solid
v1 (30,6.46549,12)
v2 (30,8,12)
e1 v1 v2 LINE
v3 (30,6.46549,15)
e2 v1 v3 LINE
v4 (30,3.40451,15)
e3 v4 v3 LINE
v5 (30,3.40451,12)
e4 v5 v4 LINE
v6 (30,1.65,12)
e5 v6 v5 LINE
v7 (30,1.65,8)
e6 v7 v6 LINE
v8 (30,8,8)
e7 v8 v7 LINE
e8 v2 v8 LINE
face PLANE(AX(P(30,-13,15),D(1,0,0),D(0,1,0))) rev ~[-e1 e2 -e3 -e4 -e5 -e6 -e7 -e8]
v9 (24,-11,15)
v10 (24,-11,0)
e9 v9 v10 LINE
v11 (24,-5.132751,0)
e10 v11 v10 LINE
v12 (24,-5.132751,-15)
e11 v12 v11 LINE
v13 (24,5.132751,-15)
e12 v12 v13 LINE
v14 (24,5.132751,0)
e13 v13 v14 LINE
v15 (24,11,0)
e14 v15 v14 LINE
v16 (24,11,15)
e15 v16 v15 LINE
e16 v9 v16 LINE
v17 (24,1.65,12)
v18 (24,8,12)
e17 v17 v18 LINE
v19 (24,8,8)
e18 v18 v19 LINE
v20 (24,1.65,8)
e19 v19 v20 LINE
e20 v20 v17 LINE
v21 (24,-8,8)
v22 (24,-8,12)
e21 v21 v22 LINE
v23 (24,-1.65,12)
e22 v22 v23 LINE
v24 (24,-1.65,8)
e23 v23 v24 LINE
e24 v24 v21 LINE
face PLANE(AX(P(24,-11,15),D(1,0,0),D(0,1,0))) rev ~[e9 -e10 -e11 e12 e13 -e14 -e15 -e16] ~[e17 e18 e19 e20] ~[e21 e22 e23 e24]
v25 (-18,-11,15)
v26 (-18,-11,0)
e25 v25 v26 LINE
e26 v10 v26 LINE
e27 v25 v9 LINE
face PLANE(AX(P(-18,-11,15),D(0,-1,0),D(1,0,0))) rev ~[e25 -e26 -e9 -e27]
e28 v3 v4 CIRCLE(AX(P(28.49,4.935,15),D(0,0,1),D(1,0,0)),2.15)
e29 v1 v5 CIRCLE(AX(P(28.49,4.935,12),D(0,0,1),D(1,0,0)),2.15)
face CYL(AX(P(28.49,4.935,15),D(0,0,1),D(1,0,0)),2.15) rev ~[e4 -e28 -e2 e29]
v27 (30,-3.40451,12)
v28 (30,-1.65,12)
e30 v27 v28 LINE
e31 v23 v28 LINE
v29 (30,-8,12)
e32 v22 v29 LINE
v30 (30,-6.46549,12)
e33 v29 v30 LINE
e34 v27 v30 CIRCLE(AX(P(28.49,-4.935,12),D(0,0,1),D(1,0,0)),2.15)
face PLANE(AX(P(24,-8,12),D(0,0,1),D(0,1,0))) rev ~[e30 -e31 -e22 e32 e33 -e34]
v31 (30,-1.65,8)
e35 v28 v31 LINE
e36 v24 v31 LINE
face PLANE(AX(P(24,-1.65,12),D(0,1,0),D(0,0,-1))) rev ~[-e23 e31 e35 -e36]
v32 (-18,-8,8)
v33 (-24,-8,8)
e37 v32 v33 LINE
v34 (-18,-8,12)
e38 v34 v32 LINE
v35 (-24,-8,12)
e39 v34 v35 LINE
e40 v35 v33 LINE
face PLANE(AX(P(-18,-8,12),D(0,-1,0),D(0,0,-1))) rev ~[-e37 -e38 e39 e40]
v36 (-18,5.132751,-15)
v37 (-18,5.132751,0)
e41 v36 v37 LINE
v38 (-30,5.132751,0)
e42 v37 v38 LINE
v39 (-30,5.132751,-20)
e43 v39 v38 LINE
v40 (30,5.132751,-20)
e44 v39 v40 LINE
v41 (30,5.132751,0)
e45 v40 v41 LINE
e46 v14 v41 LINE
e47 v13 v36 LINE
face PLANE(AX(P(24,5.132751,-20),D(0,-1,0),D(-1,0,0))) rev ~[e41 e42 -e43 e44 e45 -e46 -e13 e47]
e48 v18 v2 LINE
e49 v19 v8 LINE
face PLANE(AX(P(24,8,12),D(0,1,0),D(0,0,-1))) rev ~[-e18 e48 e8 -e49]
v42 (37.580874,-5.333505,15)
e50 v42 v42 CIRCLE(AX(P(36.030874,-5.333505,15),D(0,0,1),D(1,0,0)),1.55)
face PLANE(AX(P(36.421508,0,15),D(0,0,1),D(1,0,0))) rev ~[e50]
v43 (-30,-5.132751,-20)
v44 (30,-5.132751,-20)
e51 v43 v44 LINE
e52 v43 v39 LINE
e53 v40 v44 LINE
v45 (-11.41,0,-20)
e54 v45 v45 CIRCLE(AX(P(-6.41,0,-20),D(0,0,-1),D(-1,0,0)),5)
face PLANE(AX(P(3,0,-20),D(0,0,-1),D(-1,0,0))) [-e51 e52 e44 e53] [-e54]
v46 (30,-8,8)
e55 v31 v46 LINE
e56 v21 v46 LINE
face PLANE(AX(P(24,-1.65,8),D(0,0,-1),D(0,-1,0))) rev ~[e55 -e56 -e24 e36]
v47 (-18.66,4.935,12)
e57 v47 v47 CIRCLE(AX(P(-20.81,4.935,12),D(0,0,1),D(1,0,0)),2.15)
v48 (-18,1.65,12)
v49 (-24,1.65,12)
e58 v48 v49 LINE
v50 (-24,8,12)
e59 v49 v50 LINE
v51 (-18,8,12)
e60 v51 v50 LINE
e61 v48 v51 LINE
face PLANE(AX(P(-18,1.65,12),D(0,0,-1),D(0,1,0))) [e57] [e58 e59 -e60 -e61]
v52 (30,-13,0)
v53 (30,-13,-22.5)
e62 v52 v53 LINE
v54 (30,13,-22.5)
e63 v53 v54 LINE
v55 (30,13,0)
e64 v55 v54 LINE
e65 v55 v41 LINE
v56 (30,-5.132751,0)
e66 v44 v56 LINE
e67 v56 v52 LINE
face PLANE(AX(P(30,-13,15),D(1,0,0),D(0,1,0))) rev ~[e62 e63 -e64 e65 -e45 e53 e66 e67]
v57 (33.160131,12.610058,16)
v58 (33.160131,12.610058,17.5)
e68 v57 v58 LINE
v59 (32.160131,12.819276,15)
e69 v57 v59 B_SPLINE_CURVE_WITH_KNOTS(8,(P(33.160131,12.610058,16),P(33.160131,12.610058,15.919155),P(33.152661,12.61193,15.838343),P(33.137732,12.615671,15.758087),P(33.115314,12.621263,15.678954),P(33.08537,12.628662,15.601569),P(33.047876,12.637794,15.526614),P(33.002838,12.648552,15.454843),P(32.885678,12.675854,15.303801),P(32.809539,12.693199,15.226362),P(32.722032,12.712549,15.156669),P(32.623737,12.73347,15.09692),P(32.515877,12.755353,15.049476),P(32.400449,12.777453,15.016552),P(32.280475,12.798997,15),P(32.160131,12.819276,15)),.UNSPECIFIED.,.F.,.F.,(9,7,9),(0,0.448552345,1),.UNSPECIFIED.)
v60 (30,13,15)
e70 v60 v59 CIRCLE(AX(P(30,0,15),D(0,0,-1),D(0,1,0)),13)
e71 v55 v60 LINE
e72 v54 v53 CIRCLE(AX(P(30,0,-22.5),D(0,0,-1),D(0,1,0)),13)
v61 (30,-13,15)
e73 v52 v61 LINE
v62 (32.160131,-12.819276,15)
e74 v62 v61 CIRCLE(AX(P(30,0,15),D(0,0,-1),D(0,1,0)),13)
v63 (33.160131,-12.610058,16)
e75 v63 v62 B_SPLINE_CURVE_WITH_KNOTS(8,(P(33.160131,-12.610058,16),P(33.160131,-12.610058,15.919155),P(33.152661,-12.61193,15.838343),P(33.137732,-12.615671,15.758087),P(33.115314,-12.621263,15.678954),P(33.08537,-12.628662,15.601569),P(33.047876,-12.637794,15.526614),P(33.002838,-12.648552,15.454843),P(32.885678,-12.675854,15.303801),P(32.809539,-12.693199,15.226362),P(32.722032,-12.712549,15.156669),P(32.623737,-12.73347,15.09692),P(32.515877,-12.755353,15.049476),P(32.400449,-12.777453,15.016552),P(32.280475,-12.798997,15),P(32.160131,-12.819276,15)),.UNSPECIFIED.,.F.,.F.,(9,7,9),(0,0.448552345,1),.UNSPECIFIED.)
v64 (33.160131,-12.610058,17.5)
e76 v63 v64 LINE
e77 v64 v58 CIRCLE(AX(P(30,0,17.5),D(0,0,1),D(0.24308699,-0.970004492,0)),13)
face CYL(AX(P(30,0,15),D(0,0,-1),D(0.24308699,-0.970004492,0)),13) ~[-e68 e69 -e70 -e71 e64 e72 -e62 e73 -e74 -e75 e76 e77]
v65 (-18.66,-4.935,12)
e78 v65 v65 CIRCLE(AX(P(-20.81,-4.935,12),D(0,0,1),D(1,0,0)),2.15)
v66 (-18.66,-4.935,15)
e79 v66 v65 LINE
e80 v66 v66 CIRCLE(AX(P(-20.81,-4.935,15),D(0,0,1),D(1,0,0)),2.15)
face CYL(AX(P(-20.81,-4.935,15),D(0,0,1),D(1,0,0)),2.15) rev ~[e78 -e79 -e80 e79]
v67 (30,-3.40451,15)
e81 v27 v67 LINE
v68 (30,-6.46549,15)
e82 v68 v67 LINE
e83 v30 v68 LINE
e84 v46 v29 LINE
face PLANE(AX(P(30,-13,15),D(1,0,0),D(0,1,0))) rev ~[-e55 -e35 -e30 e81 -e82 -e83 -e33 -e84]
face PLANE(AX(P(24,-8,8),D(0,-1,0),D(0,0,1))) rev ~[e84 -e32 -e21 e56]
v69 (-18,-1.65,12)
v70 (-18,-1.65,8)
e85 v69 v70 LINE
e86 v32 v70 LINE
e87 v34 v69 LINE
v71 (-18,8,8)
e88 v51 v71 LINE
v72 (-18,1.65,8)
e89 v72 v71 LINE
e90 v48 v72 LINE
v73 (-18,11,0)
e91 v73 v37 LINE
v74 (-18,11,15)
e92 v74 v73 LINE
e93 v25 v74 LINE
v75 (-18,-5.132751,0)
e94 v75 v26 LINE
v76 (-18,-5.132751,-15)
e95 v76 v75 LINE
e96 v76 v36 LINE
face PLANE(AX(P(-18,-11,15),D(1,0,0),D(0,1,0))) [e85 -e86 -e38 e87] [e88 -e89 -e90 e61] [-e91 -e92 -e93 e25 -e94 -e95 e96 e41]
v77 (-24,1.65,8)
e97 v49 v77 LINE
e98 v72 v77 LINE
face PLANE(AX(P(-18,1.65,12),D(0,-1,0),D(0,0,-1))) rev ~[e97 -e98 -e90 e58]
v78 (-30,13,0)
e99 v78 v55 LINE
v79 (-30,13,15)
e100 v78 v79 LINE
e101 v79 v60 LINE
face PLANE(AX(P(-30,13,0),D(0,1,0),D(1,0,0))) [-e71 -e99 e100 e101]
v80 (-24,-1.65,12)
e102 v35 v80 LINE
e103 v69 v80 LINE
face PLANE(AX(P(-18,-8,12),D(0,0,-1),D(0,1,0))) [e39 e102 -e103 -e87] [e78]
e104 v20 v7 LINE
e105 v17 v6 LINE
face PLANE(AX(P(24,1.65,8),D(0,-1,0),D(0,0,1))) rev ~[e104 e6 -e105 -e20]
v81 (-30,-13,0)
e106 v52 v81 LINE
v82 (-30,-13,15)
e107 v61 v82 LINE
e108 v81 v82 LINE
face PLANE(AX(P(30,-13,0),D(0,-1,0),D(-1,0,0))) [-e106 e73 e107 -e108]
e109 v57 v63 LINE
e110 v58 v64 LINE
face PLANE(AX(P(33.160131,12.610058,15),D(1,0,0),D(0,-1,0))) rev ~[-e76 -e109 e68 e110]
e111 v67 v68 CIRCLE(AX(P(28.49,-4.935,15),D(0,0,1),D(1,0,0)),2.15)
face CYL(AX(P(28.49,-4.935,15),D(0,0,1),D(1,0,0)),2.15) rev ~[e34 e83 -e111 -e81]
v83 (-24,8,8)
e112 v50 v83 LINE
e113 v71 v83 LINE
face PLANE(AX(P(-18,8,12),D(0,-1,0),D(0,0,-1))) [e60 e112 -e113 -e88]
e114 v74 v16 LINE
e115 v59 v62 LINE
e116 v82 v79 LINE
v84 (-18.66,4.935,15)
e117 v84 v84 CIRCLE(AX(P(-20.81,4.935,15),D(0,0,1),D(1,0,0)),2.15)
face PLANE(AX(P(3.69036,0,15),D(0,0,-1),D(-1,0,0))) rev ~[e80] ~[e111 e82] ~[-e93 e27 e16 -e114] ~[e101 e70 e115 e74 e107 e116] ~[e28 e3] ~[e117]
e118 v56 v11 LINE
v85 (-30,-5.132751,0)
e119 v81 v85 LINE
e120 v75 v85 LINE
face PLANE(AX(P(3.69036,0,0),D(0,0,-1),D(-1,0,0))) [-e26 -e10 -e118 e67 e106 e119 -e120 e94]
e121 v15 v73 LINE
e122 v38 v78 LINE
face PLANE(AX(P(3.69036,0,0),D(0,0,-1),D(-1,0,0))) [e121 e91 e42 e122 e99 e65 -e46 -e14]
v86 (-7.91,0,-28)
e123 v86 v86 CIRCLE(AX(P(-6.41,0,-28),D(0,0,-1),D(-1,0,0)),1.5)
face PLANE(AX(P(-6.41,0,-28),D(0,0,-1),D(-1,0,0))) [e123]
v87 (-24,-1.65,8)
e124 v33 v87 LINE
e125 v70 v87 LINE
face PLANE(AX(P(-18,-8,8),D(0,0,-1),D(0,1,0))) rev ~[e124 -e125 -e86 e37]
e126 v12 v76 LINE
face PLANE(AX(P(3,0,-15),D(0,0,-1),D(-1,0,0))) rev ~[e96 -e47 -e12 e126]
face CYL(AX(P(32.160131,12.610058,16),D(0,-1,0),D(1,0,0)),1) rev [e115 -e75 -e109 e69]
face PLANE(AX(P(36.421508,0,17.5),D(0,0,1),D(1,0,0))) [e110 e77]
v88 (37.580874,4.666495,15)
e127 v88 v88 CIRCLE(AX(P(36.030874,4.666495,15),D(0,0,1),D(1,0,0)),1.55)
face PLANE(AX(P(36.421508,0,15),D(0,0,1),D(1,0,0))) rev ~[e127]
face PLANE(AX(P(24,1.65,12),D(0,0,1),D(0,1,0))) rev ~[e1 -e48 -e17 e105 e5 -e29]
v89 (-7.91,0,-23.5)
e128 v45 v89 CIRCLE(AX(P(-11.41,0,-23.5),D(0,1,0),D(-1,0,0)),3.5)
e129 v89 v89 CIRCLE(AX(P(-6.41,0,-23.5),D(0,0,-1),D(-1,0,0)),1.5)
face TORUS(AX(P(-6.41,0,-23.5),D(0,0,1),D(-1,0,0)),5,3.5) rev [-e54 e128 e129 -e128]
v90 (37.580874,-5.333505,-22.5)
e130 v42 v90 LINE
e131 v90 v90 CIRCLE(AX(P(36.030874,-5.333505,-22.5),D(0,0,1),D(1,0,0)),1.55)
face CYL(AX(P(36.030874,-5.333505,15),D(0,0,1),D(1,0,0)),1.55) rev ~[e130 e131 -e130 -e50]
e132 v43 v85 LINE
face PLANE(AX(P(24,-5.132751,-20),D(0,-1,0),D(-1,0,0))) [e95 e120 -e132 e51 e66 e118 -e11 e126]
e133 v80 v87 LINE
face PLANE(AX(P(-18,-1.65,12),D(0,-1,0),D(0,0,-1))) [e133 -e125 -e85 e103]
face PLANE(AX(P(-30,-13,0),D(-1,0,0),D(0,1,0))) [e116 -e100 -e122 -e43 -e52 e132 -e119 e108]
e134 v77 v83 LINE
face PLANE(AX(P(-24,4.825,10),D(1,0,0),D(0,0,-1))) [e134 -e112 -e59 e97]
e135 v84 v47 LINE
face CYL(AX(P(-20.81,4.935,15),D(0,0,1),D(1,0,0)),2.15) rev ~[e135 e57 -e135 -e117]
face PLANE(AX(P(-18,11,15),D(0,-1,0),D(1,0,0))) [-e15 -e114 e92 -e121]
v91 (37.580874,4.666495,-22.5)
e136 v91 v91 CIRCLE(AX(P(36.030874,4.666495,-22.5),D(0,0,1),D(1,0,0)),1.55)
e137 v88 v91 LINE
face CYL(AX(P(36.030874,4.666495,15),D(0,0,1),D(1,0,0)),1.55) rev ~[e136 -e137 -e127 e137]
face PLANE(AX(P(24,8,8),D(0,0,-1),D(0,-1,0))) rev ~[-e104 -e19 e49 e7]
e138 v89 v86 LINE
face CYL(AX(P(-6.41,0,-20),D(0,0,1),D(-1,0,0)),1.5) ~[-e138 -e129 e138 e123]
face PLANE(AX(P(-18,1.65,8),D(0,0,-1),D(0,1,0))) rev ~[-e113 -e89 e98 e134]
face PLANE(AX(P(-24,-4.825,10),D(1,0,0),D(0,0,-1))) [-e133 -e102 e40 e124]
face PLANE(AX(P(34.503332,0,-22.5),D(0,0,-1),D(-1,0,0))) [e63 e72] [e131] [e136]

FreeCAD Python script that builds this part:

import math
import FreeCAD as App
import Part
import Sketcher
from FreeCAD import Vector
Q = App.Units.Quantity


def edges_at(feature, points):
    """Names of the edges that pass closest to the given points."""
    edges = feature.Shape.Edges
    near = lambda p: min(range(len(edges)), key=lambda i: edges[i].distToShape(Part.Vertex(*p))[0])
    return sorted({f"Edge{near(p) + 1}" for p in points})


def add_polygon(sketch, points):
    """Adds a closed chain of lines whose ends are joined by coincident constraints."""
    first, n = sketch.GeometryCount, len(points)
    for a, b in zip(points, points[1:] + points[:1]):
        sketch.addGeometry(Part.LineSegment(App.Vector(*a, 0), App.Vector(*b, 0)), False)
    for i in range(n):
        sketch.addConstraint(Sketcher.Constraint("Coincident", first + i, 2, first + (i + 1) % n, 1))

doc = App.newDocument("Part")
body = doc.addObject("PartDesign::Body", "Body")

sketch1 = body.newObject("Sketcher::SketchObject", "Sketch")
sketch1.AttachmentSupport = (doc.getObject("XY_Plane"), [""])
sketch1.MapMode = "FlatFace"
sketch1.addGeometry([
    Part.LineSegment(Vector(-30, -13, 0), Vector(30, -13, 0)),
    Part.ArcOfCircle(Part.Circle(Vector(30, 0, 0), Vector(0, 0, 1), 13), math.radians(-90), math.radians(90)),
    Part.LineSegment(Vector(30, 13, 0), Vector(-30, 13, 0)),
    Part.LineSegment(Vector(-30, 13, 0), Vector(-30, -13, 0)),
], False)
sketch1.addConstraint([
    Sketcher.Constraint("Tangent", 0, 2, 1, 1),
    Sketcher.Constraint("Tangent", 1, 2, 2, 1),
    Sketcher.Constraint("Coincident", 2, 2, 3, 1),
    Sketcher.Constraint("Coincident", 3, 2, 0, 1),
    Sketcher.Constraint("Horizontal", 0),
    Sketcher.Constraint("Horizontal", 2),
    Sketcher.Constraint("Vertical", 3),
    Sketcher.Constraint("Symmetric", 0, 2, 2, 2, -1, 1),
    Sketcher.Constraint("Radius", 1, Q("13 mm")),
    Sketcher.Constraint("DistanceX", 0, 1, 0, 2, Q("60 mm")),
])
pad1 = body.newObject("PartDesign::Pad", "Pad")
pad1.Profile = sketch1
pad1.Length = 15

sketch2 = body.newObject("Sketcher::SketchObject", "Sketch001")
sketch2.AttachmentSupport = (doc.getObject("XY_Plane"), [""])
sketch2.MapMode = "FlatFace"
sketch2.AttachmentOffset = App.Placement(Vector(0, 0, 15), App.Rotation())
add_polygon(sketch2, [(-18, 11), (-18, -11), (24, -11), (24, 11)])
sketch2.addConstraint([
    Sketcher.Constraint("Vertical", 0),
    Sketcher.Constraint("Horizontal", 1),
    Sketcher.Constraint("Vertical", 2),
    Sketcher.Constraint("Horizontal", 3),
    Sketcher.Constraint("DistanceX", 1, 1, 1, 2, Q("42 mm")),
    Sketcher.Constraint("DistanceY", 0, 2, 0, 1, Q("22 mm")),
    Sketcher.Constraint("DistanceX", 0, 2, -1, 1, Q("18 mm")),
    Sketcher.Constraint("DistanceY", 0, 2, -1, 1, Q("11 mm")),
])
pocket1 = body.newObject("PartDesign::Pocket", "Pocket")
pocket1.Profile = sketch2
pocket1.Type = "ThroughAll"

sketch3 = body.newObject("Sketcher::SketchObject", "Sketch002")
sketch3.AttachmentSupport = (doc.getObject("XY_Plane"), [""])
sketch3.MapMode = "FlatFace"
sketch3.AttachmentOffset = App.Placement(Vector(0, 0, 15), App.Rotation())
sketch3.addGeometry([
    Part.Circle(Vector(-20.8, 4.9, 0), Vector(0, 0, 1), 2.1),
    Part.Circle(Vector(-20.8, -4.9, 0), Vector(0, 0, 1), 2.1),
    Part.Circle(Vector(28.5, 4.9, 0), Vector(0, 0, 1), 2.1),
    Part.Circle(Vector(28.5, -4.9, 0), Vector(0, 0, 1), 2.1),
], False)
sketch3.addConstraint([
    Sketcher.Constraint("Equal", 0, 1),
    Sketcher.Constraint("Equal", 1, 2),
    Sketcher.Constraint("Equal", 2, 3),
    Sketcher.Constraint("Symmetric", 0, 3, 1, 3, -1),
    Sketcher.Constraint("Symmetric", 2, 3, 3, 3, -1),
    Sketcher.Constraint("Horizontal", 0, 3, 2, 3),
    Sketcher.Constraint("Diameter", 0, Q("4.3 mm")),
    Sketcher.Constraint("DistanceX", 0, 3, 2, 3, Q("49.3 mm")),
    Sketcher.Constraint("DistanceX", 0, 3, -1, 1, Q("20.81 mm")),
    Sketcher.Constraint("DistanceY", 1, 3, 0, 3, Q("9.87 mm")),
])
pocket2 = body.newObject("PartDesign::Pocket", "Pocket001")
pocket2.Profile = sketch3
pocket2.Length = 3

sketch4 = body.newObject("Sketcher::SketchObject", "Sketch003")
sketch4.AttachmentSupport = (doc.getObject("YZ_Plane"), [""])
sketch4.MapMode = "FlatFace"
sketch4.AttachmentOffset = App.Placement(Vector(0, 0, -18), App.Rotation())
add_polygon(sketch4, [(-1.6, 12), (-8, 12), (-8, 8), (-1.6, 8)])
add_polygon(sketch4, [(8, 12), (1.6, 12), (1.6, 8), (8, 8)])
sketch4.addConstraint([
    Sketcher.Constraint("Horizontal", 0),
    Sketcher.Constraint("Vertical", 1),
    Sketcher.Constraint("Horizontal", 2),
    Sketcher.Constraint("Vertical", 3),
    Sketcher.Constraint("Horizontal", 4),
    Sketcher.Constraint("Vertical", 5),
    Sketcher.Constraint("Horizontal", 6),
    Sketcher.Constraint("Vertical", 7),
    Sketcher.Constraint("Symmetric", 3, 2, 4, 2, -2),
    Sketcher.Constraint("Symmetric", 1, 2, 6, 2, -2),
    Sketcher.Constraint("DistanceY", 1, 2, 1, 1, Q("4 mm")),
    Sketcher.Constraint("DistanceX", 0, 2, -1, 1, Q("8 mm")),
    Sketcher.Constraint("DistanceY", -1, 1, 0, 2, Q("12 mm")),
    Sketcher.Constraint("DistanceX", 0, 2, 0, 1, Q("6.35 mm")),
])
pocket3 = body.newObject("PartDesign::Pocket", "Pocket002")
pocket3.Profile = sketch4
pocket3.Length = 6

sketch5 = body.newObject("Sketcher::SketchObject", "Sketch004")
sketch5.AttachmentSupport = (doc.getObject("YZ_Plane"), [""])
sketch5.MapMode = "FlatFace"
sketch5.AttachmentOffset = App.Placement(Vector(0, 0, 24), App.Rotation())
add_polygon(sketch5, [(8, 12), (8, 8), (1.6, 8), (1.6, 12)])
add_polygon(sketch5, [(-1.6, 12), (-1.6, 8), (-8, 8), (-8, 12)])
sketch5.addConstraint([
    Sketcher.Constraint("Vertical", 0),
    Sketcher.Constraint("Horizontal", 1),
    Sketcher.Constraint("Vertical", 2),
    Sketcher.Constraint("Horizontal", 3),
    Sketcher.Constraint("Vertical", 4),
    Sketcher.Constraint("Horizontal", 5),
    Sketcher.Constraint("Vertical", 6),
    Sketcher.Constraint("Horizontal", 7),
    Sketcher.Constraint("Symmetric", 1, 2, 4, 2, -2),
    Sketcher.Constraint("Symmetric", 3, 2, 6, 2, -2),
    Sketcher.Constraint("DistanceY", 0, 2, 0, 1, Q("4 mm")),
    Sketcher.Constraint("DistanceX", -1, 1, 0, 2, Q("8 mm")),
    Sketcher.Constraint("DistanceY", -1, 1, 0, 2, Q("8 mm")),
    Sketcher.Constraint("DistanceX", 1, 2, 1, 1, Q("6.35 mm")),
])
pocket4 = body.newObject("PartDesign::Pocket", "Pocket003")
pocket4.Profile = sketch5
pocket4.Length = 8
pocket4.Reversed = True

sketch6 = body.newObject("Sketcher::SketchObject", "Sketch005")
sketch6.AttachmentSupport = (doc.getObject("XY_Plane"), [""])
sketch6.MapMode = "FlatFace"
sketch6.AttachmentOffset = App.Placement(Vector(0, 0, -20), App.Rotation())
add_polygon(sketch6, [(-18, 5), (-18, -5), (-30, -5), (-30, 5)])
sketch6.addGeometry(Part.LineSegment(Vector(24, 5, 0), Vector(42, 5, 0)), False)
sketch6.addGeometry(Part.ArcOfCircle(Part.Circle(Vector(30, 0, 0), Vector(0, 0, 1), 13), math.radians(-23), math.radians(23)), False)
sketch6.addGeometry(Part.LineSegment(Vector(42, -5, 0), Vector(24, -5, 0)), False)
sketch6.addGeometry(Part.LineSegment(Vector(24, -5, 0), Vector(24, 5, 0)), False)
sketch6.addConstraint([
    Sketcher.Constraint("Coincident", 4, 2, 5, 2),
    Sketcher.Constraint("Coincident", 5, 1, 6, 1),
    Sketcher.Constraint("Coincident", 6, 2, 7, 1),
    Sketcher.Constraint("Coincident", 7, 2, 4, 1),
    Sketcher.Constraint("Vertical", 0),
    Sketcher.Constraint("Horizontal", 1),
    Sketcher.Constraint("Vertical", 2),
    Sketcher.Constraint("Horizontal", 3),
    Sketcher.Constraint("Horizontal", 4),
    Sketcher.Constraint("Horizontal", 6),
    Sketcher.Constraint("Vertical", 7),
    Sketcher.Constraint("Symmetric", 4, 2, 5, 1, -1),
    Sketcher.Constraint("Horizontal", 3, 2, 4, 2),
    Sketcher.Constraint("Horizontal", 1, 2, 5, 1),
    Sketcher.Constraint("Radius", 5, Q("13 mm")),
    Sketcher.Constraint("DistanceX", 1, 2, 1, 1, Q("12 mm")),
    Sketcher.Constraint("DistanceX", -1, 1, 5, 3, Q("30 mm")),
    Sketcher.Constraint("DistanceX", 0, 2, -1, 1, Q("18 mm")),
    Sketcher.Constraint("DistanceX", -1, 1, 6, 2, Q("24 mm")),
    Sketcher.Constraint("DistanceX", 4, 1, 4, 2, Q("17.943821 mm")),
])
pad2 = body.newObject("PartDesign::Pad", "Pad001")
pad2.Profile = sketch6
pad2.Length = 20

sketch7 = body.newObject("Sketcher::SketchObject", "Sketch006")
sketch7.AttachmentSupport = (doc.getObject("XY_Plane"), [""])
sketch7.MapMode = "FlatFace"
sketch7.AttachmentOffset = App.Placement(Vector(0, 0, -20), App.Rotation())
add_polygon(sketch7, [(24, 5), (24, -5), (-18, -5), (-18, 5)])
sketch7.addConstraint([
    Sketcher.Constraint("Vertical", 0),
    Sketcher.Constraint("Horizontal", 1),
    Sketcher.Constraint("Vertical", 2),
    Sketcher.Constraint("Horizontal", 3),
    Sketcher.Constraint("DistanceX", 1, 2, 1, 1, Q("42 mm")),
    Sketcher.Constraint("DistanceX", -1, 1, 0, 2, Q("24 mm")),
    Sketcher.Constraint("DistanceY", 0, 2, 0, 1, Q("10.265503 mm")),
    Sketcher.Constraint("DistanceY", 0, 2, -1, 1, Q("5.132751 mm")),
])
pad3 = body.newObject("PartDesign::Pad", "Pad002")
pad3.Profile = sketch7
pad3.Length = 5

sketch8 = body.newObject("Sketcher::SketchObject", "Sketch007")
sketch8.AttachmentSupport = (doc.getObject("XY_Plane"), [""])
sketch8.MapMode = "FlatFace"
sketch8.AttachmentOffset = App.Placement(Vector(0, 0, -20), App.Rotation())
sketch8.addGeometry([
    Part.LineSegment(Vector(30, -13, 0), Vector(30, 13, 0)),
    Part.ArcOfCircle(Part.Circle(Vector(30, 0, 0), Vector(0, 0, 1), 13), math.radians(-90), math.radians(90)),
], False)
sketch8.addConstraint([
    Sketcher.Constraint("Coincident", 0, 1, 1, 1),
    Sketcher.Constraint("Coincident", 1, 2, 0, 2),
    Sketcher.Constraint("Vertical", 0),
    Sketcher.Constraint("PointOnObject", 1, 3, -1),
    Sketcher.Constraint("Vertical", 1, 3, 0, 1),
    Sketcher.Constraint("Radius", 1, Q("13 mm")),
    Sketcher.Constraint("DistanceX", -1, 1, 1, 3, Q("30 mm")),
])
pad4 = body.newObject("PartDesign::Pad", "Pad003")
pad4.Profile = sketch8
pad4.Type = "TwoLengths"
pad4.Length = 2.5
pad4.Length2 = 35
pad4.Reversed = True

sketch9 = body.newObject("Sketcher::SketchObject", "Sketch008")
sketch9.AttachmentSupport = (doc.getObject("XY_Plane"), [""])
sketch9.MapMode = "FlatFace"
sketch9.AttachmentOffset = App.Placement(Vector(0, 0, 15), App.Rotation())
sketch9.addGeometry([
    Part.Circle(Vector(36, 4.7, 0), Vector(0, 0, 1), 1.6),
    Part.Circle(Vector(36, -5.3, 0), Vector(0, 0, 1), 1.6),
], False)
sketch9.addConstraint([
    Sketcher.Constraint("Equal", 0, 1),
    Sketcher.Constraint("Vertical", 0, 3, 1, 3),
    Sketcher.Constraint("Diameter", 0, Q("3.1 mm")),
    Sketcher.Constraint("DistanceY", 1, 3, 0, 3, Q("10 mm")),
    Sketcher.Constraint("DistanceX", -1, 1, 0, 3, Q("36.030874 mm")),
    Sketcher.Constraint("DistanceY", -1, 1, 0, 3, Q("4.666495 mm")),
])
pocket5 = body.newObject("PartDesign::Pocket", "Pocket004")
pocket5.Profile = sketch9
pocket5.Type = "ThroughAll"

sketch10 = body.newObject("Sketcher::SketchObject", "Sketch009")
sketch10.AttachmentSupport = (doc.getObject("XY_Plane"), [""])
sketch10.MapMode = "FlatFace"
sketch10.AttachmentOffset = App.Placement(Vector(0, 0, 15), App.Rotation())
sketch10.addGeometry([
    Part.LineSegment(Vector(33, 13, 0), Vector(33, -13, 0)),
    Part.ArcOfCircle(Part.Circle(Vector(30, 0, 0), Vector(0, 0, 1), 13), math.radians(-76), math.radians(76)),
], False)
sketch10.addConstraint([
    Sketcher.Constraint("Coincident", 0, 1, 1, 2),
    Sketcher.Constraint("Coincident", 1, 1, 0, 2),
    Sketcher.Constraint("Vertical", 0),
    Sketcher.Constraint("PointOnObject", 1, 3, -1),
    Sketcher.Constraint("Radius", 1, Q("13 mm")),
    Sketcher.Constraint("DistanceX", -1, 1, 1, 3, Q("30 mm")),
    Sketcher.Constraint("DistanceY", 0, 2, 0, 1, Q("25.220117 mm")),
])
pad5 = body.newObject("PartDesign::Pad", "Pad004")
pad5.Profile = sketch10
pad5.Length = 2.5
doc.recompute()

fillet = body.newObject("PartDesign::Fillet", "Fillet")
fillet.Base = (pad5, edges_at(pad5, [(33.16, 0, 15)]))
fillet.Radius = 1

sketch11 = body.newObject("Sketcher::SketchObject", "Sketch010")
sketch11.AttachmentSupport = (doc.getObject("XY_Plane"), [""])
sketch11.MapMode = "FlatFace"
sketch11.AttachmentOffset = App.Placement(Vector(0, 0, -20), App.Rotation())
sketch11.addGeometry(Part.Circle(Vector(-6.4, 0, 0), Vector(0, 0, 1), 1.5), False)
sketch11.addConstraint([
    Sketcher.Constraint("PointOnObject", 0, 3, -1),
    Sketcher.Constraint("Diameter", 0, Q("3 mm")),
    Sketcher.Constraint("DistanceX", 0, 3, -1, 1, Q("6.41 mm")),
])
pad6 = body.newObject("PartDesign::Pad", "Pad005")
pad6.Profile = sketch11
pad6.Length = 8
pad6.Reversed = True
doc.recompute()

fillet2 = body.newObject("PartDesign::Fillet", "Fillet001")
fillet2.Base = (pad6, edges_at(pad6, [(-4.91, 0, -20)]))
fillet2.Radius = 3.5

doc.recompute()
